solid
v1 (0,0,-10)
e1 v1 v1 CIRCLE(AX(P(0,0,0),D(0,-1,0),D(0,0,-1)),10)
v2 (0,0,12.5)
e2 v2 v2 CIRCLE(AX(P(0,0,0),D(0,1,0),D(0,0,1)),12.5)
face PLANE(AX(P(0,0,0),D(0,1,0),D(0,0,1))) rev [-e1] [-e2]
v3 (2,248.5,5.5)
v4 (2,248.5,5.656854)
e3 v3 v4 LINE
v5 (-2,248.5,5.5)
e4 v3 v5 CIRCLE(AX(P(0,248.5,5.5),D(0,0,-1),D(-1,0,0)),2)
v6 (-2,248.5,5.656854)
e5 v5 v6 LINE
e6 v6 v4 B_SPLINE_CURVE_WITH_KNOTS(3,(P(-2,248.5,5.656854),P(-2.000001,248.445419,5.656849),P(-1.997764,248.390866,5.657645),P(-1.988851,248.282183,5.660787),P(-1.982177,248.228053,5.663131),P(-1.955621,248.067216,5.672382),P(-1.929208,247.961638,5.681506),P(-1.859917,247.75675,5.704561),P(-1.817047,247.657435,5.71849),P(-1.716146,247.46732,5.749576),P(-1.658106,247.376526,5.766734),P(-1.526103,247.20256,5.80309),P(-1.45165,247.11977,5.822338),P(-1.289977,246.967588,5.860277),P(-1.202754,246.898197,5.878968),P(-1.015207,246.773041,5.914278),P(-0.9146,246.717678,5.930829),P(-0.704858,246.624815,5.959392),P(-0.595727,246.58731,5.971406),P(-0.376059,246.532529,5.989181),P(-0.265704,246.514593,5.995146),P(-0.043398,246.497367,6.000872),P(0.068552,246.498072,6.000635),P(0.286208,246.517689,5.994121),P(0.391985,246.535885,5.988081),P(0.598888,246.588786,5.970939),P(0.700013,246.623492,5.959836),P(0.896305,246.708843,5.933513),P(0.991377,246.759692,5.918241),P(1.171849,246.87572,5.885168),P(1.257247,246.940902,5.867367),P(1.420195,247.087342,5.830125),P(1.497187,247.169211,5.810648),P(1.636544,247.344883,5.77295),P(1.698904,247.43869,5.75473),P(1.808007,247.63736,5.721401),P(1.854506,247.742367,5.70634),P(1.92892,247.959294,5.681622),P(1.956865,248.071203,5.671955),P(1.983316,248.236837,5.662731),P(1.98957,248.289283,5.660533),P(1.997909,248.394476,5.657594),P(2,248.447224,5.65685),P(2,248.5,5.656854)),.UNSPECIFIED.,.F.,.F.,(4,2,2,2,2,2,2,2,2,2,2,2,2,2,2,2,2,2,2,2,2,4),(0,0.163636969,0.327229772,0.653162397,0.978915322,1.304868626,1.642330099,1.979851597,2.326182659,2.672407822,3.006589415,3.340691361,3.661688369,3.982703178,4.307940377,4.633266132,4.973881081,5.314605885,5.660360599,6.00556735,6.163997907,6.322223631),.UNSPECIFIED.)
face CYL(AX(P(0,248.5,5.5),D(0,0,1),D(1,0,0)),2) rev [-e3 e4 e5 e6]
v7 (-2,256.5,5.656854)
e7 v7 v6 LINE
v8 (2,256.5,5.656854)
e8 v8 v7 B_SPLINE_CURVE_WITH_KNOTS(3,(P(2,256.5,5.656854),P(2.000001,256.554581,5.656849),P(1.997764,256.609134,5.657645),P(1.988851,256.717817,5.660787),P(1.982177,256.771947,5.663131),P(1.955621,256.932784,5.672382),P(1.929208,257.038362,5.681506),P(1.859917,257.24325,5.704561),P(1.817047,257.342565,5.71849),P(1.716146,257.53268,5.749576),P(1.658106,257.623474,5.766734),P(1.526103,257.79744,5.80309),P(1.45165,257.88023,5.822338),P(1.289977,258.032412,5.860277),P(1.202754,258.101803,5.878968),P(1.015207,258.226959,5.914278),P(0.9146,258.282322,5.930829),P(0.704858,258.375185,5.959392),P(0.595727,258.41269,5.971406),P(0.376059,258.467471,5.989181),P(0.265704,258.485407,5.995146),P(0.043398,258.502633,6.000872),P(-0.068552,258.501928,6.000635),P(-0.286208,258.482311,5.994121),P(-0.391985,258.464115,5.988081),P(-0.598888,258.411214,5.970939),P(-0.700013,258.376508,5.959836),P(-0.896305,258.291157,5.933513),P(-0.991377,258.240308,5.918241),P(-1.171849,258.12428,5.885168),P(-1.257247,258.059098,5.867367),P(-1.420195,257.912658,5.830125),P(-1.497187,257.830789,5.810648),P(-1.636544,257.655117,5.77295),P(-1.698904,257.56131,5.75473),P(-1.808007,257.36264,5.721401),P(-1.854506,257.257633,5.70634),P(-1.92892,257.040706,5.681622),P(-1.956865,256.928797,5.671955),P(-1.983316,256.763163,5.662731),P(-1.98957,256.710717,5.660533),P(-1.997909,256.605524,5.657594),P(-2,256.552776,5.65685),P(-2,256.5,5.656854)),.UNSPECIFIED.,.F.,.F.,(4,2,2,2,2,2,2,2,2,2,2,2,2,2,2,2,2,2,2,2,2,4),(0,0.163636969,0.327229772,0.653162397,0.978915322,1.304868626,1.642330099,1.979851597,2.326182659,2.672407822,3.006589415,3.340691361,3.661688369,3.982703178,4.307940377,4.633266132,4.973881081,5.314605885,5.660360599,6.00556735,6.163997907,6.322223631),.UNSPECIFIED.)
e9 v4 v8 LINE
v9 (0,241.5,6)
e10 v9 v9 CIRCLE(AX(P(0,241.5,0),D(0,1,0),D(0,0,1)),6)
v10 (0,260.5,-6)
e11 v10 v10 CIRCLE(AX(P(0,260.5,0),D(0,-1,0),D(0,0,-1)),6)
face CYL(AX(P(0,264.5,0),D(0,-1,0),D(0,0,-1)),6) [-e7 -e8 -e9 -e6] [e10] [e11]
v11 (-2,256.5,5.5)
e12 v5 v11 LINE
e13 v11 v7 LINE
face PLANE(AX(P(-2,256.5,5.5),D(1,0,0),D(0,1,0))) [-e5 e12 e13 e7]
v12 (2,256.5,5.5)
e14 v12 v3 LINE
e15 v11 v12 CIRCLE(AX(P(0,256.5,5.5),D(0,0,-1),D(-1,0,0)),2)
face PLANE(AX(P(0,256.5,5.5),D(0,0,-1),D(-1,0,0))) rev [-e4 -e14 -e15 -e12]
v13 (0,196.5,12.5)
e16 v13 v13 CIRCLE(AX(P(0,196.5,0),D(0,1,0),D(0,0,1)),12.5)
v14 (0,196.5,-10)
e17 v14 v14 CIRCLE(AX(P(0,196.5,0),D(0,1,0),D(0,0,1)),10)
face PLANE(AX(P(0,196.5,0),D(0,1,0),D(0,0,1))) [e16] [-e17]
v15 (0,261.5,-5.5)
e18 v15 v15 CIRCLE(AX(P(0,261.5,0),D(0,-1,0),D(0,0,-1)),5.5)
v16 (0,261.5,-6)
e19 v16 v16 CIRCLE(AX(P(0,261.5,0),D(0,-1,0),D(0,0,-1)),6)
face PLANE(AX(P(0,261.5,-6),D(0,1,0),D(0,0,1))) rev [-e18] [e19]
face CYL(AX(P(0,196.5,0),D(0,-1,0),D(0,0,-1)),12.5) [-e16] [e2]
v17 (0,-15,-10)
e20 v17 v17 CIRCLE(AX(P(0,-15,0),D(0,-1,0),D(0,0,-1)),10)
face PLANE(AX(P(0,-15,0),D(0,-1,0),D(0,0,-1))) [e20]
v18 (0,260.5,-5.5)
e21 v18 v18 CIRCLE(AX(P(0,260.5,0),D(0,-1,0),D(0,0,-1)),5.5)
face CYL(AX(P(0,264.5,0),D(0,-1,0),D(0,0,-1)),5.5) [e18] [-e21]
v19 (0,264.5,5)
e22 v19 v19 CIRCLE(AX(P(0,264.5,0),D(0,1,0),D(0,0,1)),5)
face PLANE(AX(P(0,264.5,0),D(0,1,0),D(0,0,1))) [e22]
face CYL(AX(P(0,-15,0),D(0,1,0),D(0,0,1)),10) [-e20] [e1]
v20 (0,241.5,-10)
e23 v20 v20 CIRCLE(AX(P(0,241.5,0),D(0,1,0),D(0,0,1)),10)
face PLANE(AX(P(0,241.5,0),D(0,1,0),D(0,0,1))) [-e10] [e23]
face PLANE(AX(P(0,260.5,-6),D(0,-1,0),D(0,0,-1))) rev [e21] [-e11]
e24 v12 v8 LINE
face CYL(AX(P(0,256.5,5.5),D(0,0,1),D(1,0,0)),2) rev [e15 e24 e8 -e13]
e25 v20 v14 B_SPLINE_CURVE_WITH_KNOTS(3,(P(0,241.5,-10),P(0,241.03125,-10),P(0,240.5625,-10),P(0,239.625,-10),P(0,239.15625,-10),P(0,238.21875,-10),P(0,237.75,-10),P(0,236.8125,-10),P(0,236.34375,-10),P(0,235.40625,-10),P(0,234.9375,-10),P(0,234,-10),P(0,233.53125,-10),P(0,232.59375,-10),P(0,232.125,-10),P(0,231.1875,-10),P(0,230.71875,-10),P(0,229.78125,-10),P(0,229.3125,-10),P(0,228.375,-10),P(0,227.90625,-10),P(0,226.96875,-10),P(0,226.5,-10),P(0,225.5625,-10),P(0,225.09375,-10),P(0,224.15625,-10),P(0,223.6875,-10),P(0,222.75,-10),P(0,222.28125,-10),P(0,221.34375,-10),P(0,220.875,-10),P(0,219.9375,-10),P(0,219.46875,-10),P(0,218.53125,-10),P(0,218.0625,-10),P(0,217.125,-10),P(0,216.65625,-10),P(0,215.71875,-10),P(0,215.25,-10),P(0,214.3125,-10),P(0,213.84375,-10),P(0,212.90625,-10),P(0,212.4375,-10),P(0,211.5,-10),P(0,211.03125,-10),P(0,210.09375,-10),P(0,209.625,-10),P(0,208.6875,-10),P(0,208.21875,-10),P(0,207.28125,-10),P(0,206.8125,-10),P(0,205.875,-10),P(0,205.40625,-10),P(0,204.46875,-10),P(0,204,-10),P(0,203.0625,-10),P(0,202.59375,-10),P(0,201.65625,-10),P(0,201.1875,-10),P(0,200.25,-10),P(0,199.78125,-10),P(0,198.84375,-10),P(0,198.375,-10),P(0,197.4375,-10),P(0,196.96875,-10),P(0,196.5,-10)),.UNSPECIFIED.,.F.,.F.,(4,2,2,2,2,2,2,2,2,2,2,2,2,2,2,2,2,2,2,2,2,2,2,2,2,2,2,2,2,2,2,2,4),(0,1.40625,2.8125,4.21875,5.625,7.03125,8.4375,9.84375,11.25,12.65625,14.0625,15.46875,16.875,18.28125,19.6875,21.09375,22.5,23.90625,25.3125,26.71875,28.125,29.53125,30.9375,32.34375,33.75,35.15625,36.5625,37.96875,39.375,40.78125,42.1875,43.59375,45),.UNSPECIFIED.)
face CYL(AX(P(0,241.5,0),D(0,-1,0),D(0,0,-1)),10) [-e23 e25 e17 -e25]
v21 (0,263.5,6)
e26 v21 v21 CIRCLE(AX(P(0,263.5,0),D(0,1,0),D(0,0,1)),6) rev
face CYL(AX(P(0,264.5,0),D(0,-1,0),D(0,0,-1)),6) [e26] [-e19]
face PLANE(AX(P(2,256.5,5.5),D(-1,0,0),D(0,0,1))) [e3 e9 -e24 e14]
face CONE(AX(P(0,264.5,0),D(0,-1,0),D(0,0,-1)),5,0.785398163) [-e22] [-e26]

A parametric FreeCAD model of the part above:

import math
import FreeCAD as App
import Part
import Sketcher

V = App.Vector
Q = App.Units.Quantity


def edges_at(feature, points):
    """Names of the edges that pass closest to the given points."""
    edges = feature.Shape.Edges
    near = lambda p: min(range(len(edges)), key=lambda i: edges[i].distToShape(Part.Vertex(*p))[0])
    return sorted({f"Edge{near(p) + 1}" for p in points})


def add_polygon(sketch, points):
    """Adds a closed chain of lines whose ends are joined by coincident constraints."""
    first, n = sketch.GeometryCount, len(points)
    for a, b in zip(points, points[1:] + points[:1]):
        sketch.addGeometry(Part.LineSegment(App.Vector(*a, 0), App.Vector(*b, 0)), False)
    for i in range(n):
        sketch.addConstraint(Sketcher.Constraint("Coincident", first + i, 2, first + (i + 1) % n, 1))

doc = App.newDocument("Part")
body = doc.addObject("PartDesign::Body", "Body")

sketch1 = doc.addObject("Sketcher::SketchObject", "Sketch")
body.addObject(sketch1)
sketch1.AttachmentSupport = (doc.XZ_Plane, [""])
sketch1.MapMode = "FlatFace"
sketch1.addGeometry(Part.Circle(V(0, 0, 0), V(0, 0, 1), 12), False)
sketch1.addConstraint([
    Sketcher.Constraint("Coincident", 0, 3, -1, 1),
    Sketcher.Constraint("Diameter", 0, Q("25 mm")),
])
pad1 = doc.addObject("PartDesign::Pad", "Pad")
body.addObject(pad1)
pad1.Profile = sketch1
pad1.Length = 196.5
pad1.Reversed = True

sketch2 = doc.addObject("Sketcher::SketchObject", "Sketch001")
body.addObject(sketch2)
sketch2.AttachmentSupport = (doc.XZ_Plane, [""])
sketch2.MapMode = "FlatFace"
sketch2.addGeometry(Part.Circle(V(0, 0, 0), V(0, 0, 1), 10), False)
sketch2.addConstraint([
    Sketcher.Constraint("Coincident", 0, 3, -1, 1),
    Sketcher.Constraint("Diameter", 0, Q("20 mm")),
])
pad2 = doc.addObject("PartDesign::Pad", "Pad001")
body.addObject(pad2)
pad2.Profile = sketch2
pad2.Length = 15

sketch3 = doc.addObject("Sketcher::SketchObject", "Sketch002")
body.addObject(sketch3)
sketch3.AttachmentSupport = (doc.XZ_Plane, [""])
sketch3.MapMode = "FlatFace"
sketch3.AttachmentOffset = App.Placement(V(0, 0, -241.5), App.Rotation())
sketch3.addGeometry(Part.Circle(V(0, 0, 0), V(0, 0, 1), 10), False)
sketch3.addConstraint([
    Sketcher.Constraint("Coincident", 0, 3, -1, 1),
    Sketcher.Constraint("Diameter", 0, Q("20 mm")),
])
pad3 = doc.addObject("PartDesign::Pad", "Pad002")
body.addObject(pad3)
pad3.Profile = sketch3
pad3.Length = 45

sketch4 = doc.addObject("Sketcher::SketchObject", "Sketch003")
body.addObject(sketch4)
sketch4.AttachmentSupport = (doc.XZ_Plane, [""])
sketch4.MapMode = "FlatFace"
sketch4.AttachmentOffset = App.Placement(V(0, 0, -241.5), App.Rotation())
sketch4.addGeometry(Part.Circle(V(0, 0, 0), V(0, 0, 1), 6), False)
sketch4.addConstraint([
    Sketcher.Constraint("Coincident", 0, 3, -1, 1),
    Sketcher.Constraint("Diameter", 0, Q("12 mm")),
])
pad4 = doc.addObject("PartDesign::Pad", "Pad003")
body.addObject(pad4)
pad4.Profile = sketch4
pad4.Length = 23
pad4.Reversed = True

sketch5 = doc.addObject("Sketcher::SketchObject", "Sketch004")
body.addObject(sketch5)
sketch5.AttachmentSupport = (doc.XY_Plane, [""])
sketch5.MapMode = "FlatFace"
sketch5.AttachmentOffset = App.Placement(V(0, 0, 9.5), App.Rotation())
sketch5.addGeometry([
    Part.LineSegment(V(-2, 248.5, 0), V(-2, 256.5, 0)),
    Part.ArcOfCircle(Part.Circle(V(0, 256.5, 0), V(0, 0, 1), 2), math.radians(0), math.radians(180)),
    Part.LineSegment(V(2, 256.5, 0), V(2, 248.5, 0)),
    Part.ArcOfCircle(Part.Circle(V(0, 248.5, 0), V(0, 0, 1), 2), math.radians(180), math.radians(360)),
], False)
sketch5.addConstraint([
    Sketcher.Constraint("Tangent", 0, 2, 1, 2),
    Sketcher.Constraint("Tangent", 1, 1, 2, 1),
    Sketcher.Constraint("Tangent", 2, 2, 3, 2),
    Sketcher.Constraint("Tangent", 3, 1, 0, 1),
    Sketcher.Constraint("Vertical", 0),
    Sketcher.Constraint("Vertical", 2),
    Sketcher.Constraint("PointOnObject", 1, 3, -2),
    Sketcher.Constraint("Radius", 1, Q("2 mm")),
    Sketcher.Constraint("DistanceY", 0, 1, 0, 2, Q("8 mm")),
    Sketcher.Constraint("DistanceY", -1, 1, 1, 3, Q("256.5 mm")),
])
pocket1 = doc.addObject("PartDesign::Pocket", "Pocket")
body.addObject(pocket1)
pocket1.Profile = sketch5
pocket1.Length = 4
doc.recompute()

chamfer = doc.addObject("PartDesign::Chamfer", "Chamfer")
body.addObject(chamfer)
chamfer.Base = (pocket1, edges_at(pocket1, [(0, 264.5, -6)]))
chamfer.Size = 1

sketch6 = doc.addObject("Sketcher::SketchObject", "Sketch005")
body.addObject(sketch6)
sketch6.AttachmentSupport = (doc.YZ_Plane, [""])
sketch6.MapMode = "FlatFace"
add_polygon(sketch6, [(261.5, -5.5), (260.5, -5.5), (260.5, -6), (261.5, -6)])
sketch6.addConstraint([
    Sketcher.Constraint("Horizontal", 0),
    Sketcher.Constraint("Vertical", 1),
    Sketcher.Constraint("Horizontal", 2),
    Sketcher.Constraint("Vertical", 3),
    Sketcher.Constraint("DistanceX", 0, 2, 0, 1, Q("1 mm")),
    Sketcher.Constraint("DistanceY", 1, 2, 1, 1, Q("0.5 mm")),
    Sketcher.Constraint("DistanceY", 1, 2, -1, 1, Q("6 mm")),
    Sketcher.Constraint("DistanceX", -1, 1, 0, 2, Q("260.5 mm")),
])
groove = doc.addObject("PartDesign::Groove", "Groove")
body.addObject(groove)
groove.Profile = sketch6
groove.ReferenceAxis = (sketch6, ["H_Axis"])
groove.Angle = 360

doc.recompute()
